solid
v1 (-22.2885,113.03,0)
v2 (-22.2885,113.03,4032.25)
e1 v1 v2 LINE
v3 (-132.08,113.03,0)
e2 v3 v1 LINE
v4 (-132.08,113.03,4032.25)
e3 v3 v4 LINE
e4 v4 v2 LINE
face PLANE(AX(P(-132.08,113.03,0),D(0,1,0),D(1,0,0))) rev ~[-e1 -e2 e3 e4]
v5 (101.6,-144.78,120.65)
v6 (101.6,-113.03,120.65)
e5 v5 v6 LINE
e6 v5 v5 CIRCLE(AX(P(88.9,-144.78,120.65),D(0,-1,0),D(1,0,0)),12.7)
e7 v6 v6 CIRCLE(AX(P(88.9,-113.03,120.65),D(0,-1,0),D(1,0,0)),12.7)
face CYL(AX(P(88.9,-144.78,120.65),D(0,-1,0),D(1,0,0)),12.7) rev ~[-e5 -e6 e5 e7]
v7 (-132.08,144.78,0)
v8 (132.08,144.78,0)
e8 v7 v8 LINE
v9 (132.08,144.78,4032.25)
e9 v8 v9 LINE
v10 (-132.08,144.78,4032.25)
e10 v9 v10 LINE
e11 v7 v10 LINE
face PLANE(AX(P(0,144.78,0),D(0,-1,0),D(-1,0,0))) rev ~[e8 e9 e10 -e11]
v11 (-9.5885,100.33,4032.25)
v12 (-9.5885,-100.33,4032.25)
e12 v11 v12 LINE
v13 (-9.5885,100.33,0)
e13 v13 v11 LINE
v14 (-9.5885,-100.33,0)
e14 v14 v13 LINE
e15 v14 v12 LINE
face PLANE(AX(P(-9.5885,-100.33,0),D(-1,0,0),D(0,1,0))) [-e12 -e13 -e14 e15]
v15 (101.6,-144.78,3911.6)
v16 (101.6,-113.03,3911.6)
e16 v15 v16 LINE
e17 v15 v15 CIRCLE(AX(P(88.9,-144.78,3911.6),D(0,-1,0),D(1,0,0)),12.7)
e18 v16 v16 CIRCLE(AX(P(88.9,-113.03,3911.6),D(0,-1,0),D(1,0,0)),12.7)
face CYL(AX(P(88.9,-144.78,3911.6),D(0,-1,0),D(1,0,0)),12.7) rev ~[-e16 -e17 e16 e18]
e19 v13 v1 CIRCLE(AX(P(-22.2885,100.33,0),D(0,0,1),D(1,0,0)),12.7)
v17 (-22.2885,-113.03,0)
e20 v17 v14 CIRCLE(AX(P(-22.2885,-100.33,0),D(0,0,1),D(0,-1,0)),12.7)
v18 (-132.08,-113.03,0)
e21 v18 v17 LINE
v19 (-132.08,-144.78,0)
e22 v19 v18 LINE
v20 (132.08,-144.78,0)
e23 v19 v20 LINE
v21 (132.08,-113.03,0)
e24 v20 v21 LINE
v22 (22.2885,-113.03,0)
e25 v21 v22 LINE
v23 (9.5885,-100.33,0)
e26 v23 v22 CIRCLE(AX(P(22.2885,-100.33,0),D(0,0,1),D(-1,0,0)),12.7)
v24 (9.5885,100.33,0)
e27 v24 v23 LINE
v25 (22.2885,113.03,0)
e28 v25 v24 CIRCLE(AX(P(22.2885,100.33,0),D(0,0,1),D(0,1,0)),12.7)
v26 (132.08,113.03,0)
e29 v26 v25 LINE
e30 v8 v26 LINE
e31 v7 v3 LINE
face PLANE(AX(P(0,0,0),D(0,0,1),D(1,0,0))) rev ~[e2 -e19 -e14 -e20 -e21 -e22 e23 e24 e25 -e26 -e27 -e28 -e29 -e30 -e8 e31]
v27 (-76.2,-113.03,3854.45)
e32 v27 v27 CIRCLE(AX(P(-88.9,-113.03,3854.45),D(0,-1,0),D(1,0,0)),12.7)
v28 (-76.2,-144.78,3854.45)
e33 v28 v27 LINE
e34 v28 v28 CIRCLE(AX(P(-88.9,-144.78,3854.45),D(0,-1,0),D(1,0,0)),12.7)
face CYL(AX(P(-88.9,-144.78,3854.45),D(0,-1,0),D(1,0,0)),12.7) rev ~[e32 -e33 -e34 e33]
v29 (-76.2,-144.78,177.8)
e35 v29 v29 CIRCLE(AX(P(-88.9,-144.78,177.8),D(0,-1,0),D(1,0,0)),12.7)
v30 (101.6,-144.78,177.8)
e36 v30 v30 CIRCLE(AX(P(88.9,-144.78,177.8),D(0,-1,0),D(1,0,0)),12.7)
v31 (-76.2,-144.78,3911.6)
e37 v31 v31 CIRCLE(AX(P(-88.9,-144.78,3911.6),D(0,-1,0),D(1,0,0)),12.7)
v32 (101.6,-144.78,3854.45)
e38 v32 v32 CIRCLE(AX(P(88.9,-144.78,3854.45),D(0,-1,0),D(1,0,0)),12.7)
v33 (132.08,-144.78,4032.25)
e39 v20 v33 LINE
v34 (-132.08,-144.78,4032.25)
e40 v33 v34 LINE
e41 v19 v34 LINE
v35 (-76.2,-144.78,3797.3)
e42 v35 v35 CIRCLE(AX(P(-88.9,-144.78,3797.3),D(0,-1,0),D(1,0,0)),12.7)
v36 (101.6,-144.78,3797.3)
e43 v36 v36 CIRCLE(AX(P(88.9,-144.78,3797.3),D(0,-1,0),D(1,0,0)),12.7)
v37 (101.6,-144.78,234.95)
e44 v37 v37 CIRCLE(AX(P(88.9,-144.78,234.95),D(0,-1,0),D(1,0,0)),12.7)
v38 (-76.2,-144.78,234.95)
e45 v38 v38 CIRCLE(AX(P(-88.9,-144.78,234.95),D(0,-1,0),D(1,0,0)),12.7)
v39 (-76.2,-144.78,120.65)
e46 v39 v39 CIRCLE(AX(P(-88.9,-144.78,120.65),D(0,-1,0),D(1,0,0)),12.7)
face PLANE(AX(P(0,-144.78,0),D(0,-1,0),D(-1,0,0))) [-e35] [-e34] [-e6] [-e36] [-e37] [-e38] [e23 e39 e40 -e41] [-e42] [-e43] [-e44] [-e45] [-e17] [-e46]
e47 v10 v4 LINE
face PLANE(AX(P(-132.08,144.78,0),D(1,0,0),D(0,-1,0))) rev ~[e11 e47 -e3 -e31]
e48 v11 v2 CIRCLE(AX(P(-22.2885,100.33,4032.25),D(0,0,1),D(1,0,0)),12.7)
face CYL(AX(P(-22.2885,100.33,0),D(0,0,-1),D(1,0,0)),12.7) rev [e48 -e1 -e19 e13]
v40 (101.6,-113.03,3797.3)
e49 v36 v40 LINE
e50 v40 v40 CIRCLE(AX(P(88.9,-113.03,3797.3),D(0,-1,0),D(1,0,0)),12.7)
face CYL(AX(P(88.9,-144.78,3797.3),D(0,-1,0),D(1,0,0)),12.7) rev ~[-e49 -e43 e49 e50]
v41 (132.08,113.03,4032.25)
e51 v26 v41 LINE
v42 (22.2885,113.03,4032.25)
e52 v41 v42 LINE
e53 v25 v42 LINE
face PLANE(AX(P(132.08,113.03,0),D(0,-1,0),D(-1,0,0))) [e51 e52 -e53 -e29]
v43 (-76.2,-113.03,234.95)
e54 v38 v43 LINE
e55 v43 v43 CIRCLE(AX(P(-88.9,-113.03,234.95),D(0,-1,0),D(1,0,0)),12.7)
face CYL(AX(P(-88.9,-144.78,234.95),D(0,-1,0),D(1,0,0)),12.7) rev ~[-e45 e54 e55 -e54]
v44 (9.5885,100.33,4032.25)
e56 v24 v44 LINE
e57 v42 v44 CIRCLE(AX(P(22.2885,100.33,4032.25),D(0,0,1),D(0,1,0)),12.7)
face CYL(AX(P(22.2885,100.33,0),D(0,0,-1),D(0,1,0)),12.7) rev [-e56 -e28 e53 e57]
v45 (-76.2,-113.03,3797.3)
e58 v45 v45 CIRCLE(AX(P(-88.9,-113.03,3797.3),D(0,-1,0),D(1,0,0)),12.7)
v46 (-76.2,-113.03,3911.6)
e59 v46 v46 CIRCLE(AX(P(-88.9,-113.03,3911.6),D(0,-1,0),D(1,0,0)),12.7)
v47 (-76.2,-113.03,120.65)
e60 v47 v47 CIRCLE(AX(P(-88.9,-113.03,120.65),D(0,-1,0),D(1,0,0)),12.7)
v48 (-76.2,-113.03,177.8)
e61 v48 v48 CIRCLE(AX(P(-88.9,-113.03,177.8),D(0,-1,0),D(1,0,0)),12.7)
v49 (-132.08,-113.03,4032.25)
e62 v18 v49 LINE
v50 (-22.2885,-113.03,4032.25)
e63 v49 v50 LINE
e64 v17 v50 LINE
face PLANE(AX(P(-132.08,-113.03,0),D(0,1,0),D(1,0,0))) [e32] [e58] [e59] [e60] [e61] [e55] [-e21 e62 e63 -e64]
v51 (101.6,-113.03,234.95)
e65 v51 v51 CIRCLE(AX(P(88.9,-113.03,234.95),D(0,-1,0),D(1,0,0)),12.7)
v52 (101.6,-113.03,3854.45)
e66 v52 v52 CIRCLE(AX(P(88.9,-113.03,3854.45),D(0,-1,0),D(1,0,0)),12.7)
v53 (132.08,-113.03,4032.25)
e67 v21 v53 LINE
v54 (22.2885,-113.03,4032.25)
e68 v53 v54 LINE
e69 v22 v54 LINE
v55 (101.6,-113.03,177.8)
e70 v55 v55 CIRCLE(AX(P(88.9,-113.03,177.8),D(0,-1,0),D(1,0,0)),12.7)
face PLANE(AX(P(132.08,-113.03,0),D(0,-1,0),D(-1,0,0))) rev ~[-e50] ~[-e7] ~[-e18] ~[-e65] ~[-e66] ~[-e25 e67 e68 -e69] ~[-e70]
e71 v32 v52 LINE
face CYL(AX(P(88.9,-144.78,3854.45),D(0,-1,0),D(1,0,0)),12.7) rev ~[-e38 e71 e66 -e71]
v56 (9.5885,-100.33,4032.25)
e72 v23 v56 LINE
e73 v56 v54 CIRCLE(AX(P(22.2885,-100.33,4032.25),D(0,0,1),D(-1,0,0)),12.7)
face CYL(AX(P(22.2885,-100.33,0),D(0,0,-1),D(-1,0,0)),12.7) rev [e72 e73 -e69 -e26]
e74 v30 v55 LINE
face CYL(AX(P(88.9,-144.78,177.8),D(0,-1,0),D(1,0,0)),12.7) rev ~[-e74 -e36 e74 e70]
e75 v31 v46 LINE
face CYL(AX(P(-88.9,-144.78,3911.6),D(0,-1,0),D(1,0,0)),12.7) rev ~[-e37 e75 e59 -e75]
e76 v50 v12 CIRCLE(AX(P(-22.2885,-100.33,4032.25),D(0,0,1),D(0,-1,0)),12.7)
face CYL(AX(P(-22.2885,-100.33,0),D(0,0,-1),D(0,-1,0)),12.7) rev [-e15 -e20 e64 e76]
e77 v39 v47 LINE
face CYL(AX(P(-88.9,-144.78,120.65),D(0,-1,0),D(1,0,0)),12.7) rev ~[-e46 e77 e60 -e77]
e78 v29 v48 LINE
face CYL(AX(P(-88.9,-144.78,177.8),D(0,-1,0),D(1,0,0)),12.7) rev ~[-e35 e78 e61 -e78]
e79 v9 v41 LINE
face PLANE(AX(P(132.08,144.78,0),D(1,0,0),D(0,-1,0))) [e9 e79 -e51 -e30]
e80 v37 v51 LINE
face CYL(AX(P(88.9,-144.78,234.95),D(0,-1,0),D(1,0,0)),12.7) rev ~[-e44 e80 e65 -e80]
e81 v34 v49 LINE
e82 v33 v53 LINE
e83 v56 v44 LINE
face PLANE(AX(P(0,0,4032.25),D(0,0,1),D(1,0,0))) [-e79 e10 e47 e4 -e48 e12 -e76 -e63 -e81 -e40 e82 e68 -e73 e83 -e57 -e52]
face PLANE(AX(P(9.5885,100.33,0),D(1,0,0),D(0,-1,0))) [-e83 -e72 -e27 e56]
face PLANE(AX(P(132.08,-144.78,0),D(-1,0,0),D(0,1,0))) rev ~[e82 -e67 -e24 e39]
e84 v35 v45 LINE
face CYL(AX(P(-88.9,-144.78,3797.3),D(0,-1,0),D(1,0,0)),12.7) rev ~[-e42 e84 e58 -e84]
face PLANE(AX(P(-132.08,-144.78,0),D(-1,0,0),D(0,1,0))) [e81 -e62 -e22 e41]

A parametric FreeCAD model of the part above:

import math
import FreeCAD as App
import Part
import Sketcher
from FreeCAD import Vector
Q = App.Units.Quantity

doc = App.newDocument("Part")
body = doc.addObject("PartDesign::Body", "Body")

# Sketch on XY plane
sketch1 = body.newObject("Sketcher::SketchObject", "Sketch")
sketch1.AttachmentSupport = (doc.getObject("XY_Plane"), [""])
sketch1.MapMode = "FlatFace"
sketch1.addGeometry([
    Part.LineSegment(Vector(-132, -113, 0), Vector(-132, -145, 0)),  # 0
    Part.LineSegment(Vector(-132, -145, 0), Vector(132, -145, 0)),  # 1
    Part.LineSegment(Vector(132, -145, 0), Vector(132, -113, 0)),  # 2
    Part.LineSegment(Vector(132, -113, 0), Vector(22, -113, 0)),  # 3
    Part.ArcOfCircle(Part.Circle(Vector(22, -100, 0), Vector(0, 0, 1), 13), math.radians(180), math.radians(270)),  # 4
    Part.LineSegment(Vector(10, -100, 0), Vector(10, 100, 0)),  # 5
    Part.ArcOfCircle(Part.Circle(Vector(22, 100, 0), Vector(0, 0, 1), 13), math.radians(90), math.radians(180)),  # 6
    Part.LineSegment(Vector(22, 113, 0), Vector(132, 113, 0)),  # 7
    Part.LineSegment(Vector(132, 113, 0), Vector(132, 145, 0)),  # 8
    Part.LineSegment(Vector(132, 145, 0), Vector(-132, 145, 0)),  # 9
    Part.LineSegment(Vector(-132, 145, 0), Vector(-132, 113, 0)),  # 10
    Part.LineSegment(Vector(-132, 113, 0), Vector(-22, 113, 0)),  # 11
    Part.ArcOfCircle(Part.Circle(Vector(-22, 100, 0), Vector(0, 0, 1), 13), math.radians(0), math.radians(90)),  # 12
    Part.LineSegment(Vector(-10, 100, 0), Vector(-10, -100, 0)),  # 13
    Part.ArcOfCircle(Part.Circle(Vector(-22, -100, 0), Vector(0, 0, 1), 13), math.radians(-90), math.radians(0)),  # 14
    Part.LineSegment(Vector(-22, -113, 0), Vector(-132, -113, 0)),  # 15
], False)
sketch1.addConstraint([
    Sketcher.Constraint("Coincident", 0, 2, 1, 1),
    Sketcher.Constraint("Coincident", 1, 2, 2, 1),
    Sketcher.Constraint("Coincident", 2, 2, 3, 1),
    Sketcher.Constraint("Tangent", 3, 2, 4, 2),
    Sketcher.Constraint("Tangent", 4, 1, 5, 1),
    Sketcher.Constraint("Tangent", 5, 2, 6, 2),
    Sketcher.Constraint("Tangent", 6, 1, 7, 1),
    Sketcher.Constraint("Coincident", 7, 2, 8, 1),
    Sketcher.Constraint("Coincident", 8, 2, 9, 1),
    Sketcher.Constraint("Coincident", 9, 2, 10, 1),
    Sketcher.Constraint("Coincident", 10, 2, 11, 1),
    Sketcher.Constraint("Tangent", 11, 2, 12, 2),
    Sketcher.Constraint("Tangent", 12, 1, 13, 1),
    Sketcher.Constraint("Tangent", 13, 2, 14, 2),
    Sketcher.Constraint("Tangent", 14, 1, 15, 1),
    Sketcher.Constraint("Coincident", 15, 2, 0, 1),
    Sketcher.Constraint("Vertical", 0),
    Sketcher.Constraint("Horizontal", 1),
    Sketcher.Constraint("Vertical", 2),
    Sketcher.Constraint("Horizontal", 3),
    Sketcher.Constraint("Vertical", 5),
    Sketcher.Constraint("Horizontal", 7),
    Sketcher.Constraint("Vertical", 8),
    Sketcher.Constraint("Horizontal", 9),
    Sketcher.Constraint("Vertical", 10),
    Sketcher.Constraint("Horizontal", 11),
    Sketcher.Constraint("Vertical", 13),
    Sketcher.Constraint("Horizontal", 15),
    Sketcher.Constraint("Equal", 4, 6),
    Sketcher.Constraint("Equal", 6, 12),
    Sketcher.Constraint("Equal", 12, 14),
    Sketcher.Constraint("Symmetric", 4, 3, 12, 3, -1, 1),
    Sketcher.Constraint("Symmetric", 0, 2, 8, 2, -1, 1),
    Sketcher.Constraint("Symmetric", 7, 2, 10, 2, -2),
    Sketcher.Constraint("Symmetric", 2, 2, 15, 2, -2),
    Sketcher.Constraint("Radius", 4, Q("0.5 in")),
    Sketcher.Constraint("DistanceY", 0, 2, 0, 1, Q("1.25 in")),
    Sketcher.Constraint("DistanceX", 0, 2, -1, 1, Q("5.2 in")),
    Sketcher.Constraint("DistanceY", 0, 2, -1, 1, Q("5.7 in")),
    Sketcher.Constraint("DistanceX", -1, 1, 4, 1, Q("0.3775 in")),
])
pad1 = body.newObject("PartDesign::Pad", "Pad")
pad1.Profile = sketch1
pad1.Length = Q("158.75 in")

# Sketch on XZ plane
sketch2 = body.newObject("Sketcher::SketchObject", "Sketch001")
sketch2.AttachmentSupport = (doc.getObject("XZ_Plane"), [""])
sketch2.MapMode = "FlatFace"
sketch2.AttachmentOffset = App.Placement(Vector(0, 0, 5.7 * 25.4), App.Rotation())
sketch2.addGeometry([
    Part.Circle(Vector(-89, 121, 0), Vector(0, 0, 1), 13),  # 0
    Part.Circle(Vector(-89, 178, 0), Vector(0, 0, 1), 13),  # 1
    Part.Circle(Vector(-89, 235, 0), Vector(0, 0, 1), 13),  # 2
    Part.Circle(Vector(89, 121, 0), Vector(0, 0, 1), 13),  # 3
    Part.Circle(Vector(89, 178, 0), Vector(0, 0, 1), 13),  # 4
    Part.Circle(Vector(89, 235, 0), Vector(0, 0, 1), 13),  # 5
    Part.Circle(Vector(-89, 3797, 0), Vector(0, 0, 1), 13),  # 6
    Part.Circle(Vector(-89, 3854, 0), Vector(0, 0, 1), 13),  # 7
    Part.Circle(Vector(-89, 3912, 0), Vector(0, 0, 1), 13),  # 8
    Part.Circle(Vector(89, 3797, 0), Vector(0, 0, 1), 13),  # 9
    Part.Circle(Vector(89, 3854, 0), Vector(0, 0, 1), 13),  # 10
    Part.Circle(Vector(89, 3912, 0), Vector(0, 0, 1), 13),  # 11
], False)
sketch2.addConstraint([
    Sketcher.Constraint("Equal", 0, 1),
    Sketcher.Constraint("Equal", 1, 2),
    Sketcher.Constraint("Equal", 2, 3),
    Sketcher.Constraint("Equal", 3, 4),
    Sketcher.Constraint("Equal", 4, 5),
    Sketcher.Constraint("Equal", 5, 6),
    Sketcher.Constraint("Equal", 6, 7),
    Sketcher.Constraint("Equal", 7, 8),
    Sketcher.Constraint("Equal", 8, 9),
    Sketcher.Constraint("Equal", 9, 10),
    Sketcher.Constraint("Equal", 10, 11),
    Sketcher.Constraint("Symmetric", 0, 3, 3, 3, -2),
    Sketcher.Constraint("Symmetric", 1, 3, 4, 3, -2),
    Sketcher.Constraint("Symmetric", 2, 3, 5, 3, -2),
    Sketcher.Constraint("Symmetric", 6, 3, 9, 3, -2),
    Sketcher.Constraint("Symmetric", 7, 3, 10, 3, -2),
    Sketcher.Constraint("Symmetric", 8, 3, 11, 3, -2),
    Sketcher.Constraint("Vertical", 0, 3, 1, 3),
    Sketcher.Constraint("Vertical", 1, 3, 2, 3),
    Sketcher.Constraint("Vertical", 2, 3, 6, 3),
    Sketcher.Constraint("Vertical", 6, 3, 7, 3),
    Sketcher.Constraint("Vertical", 7, 3, 8, 3),
    Sketcher.Constraint("Diameter", 0, Q("1 in")),
    Sketcher.Constraint("DistanceY", -1, 1, 1, 3, Q("7 in")),
    Sketcher.Constraint("DistanceY", -1, 1, 8, 3, Q("154 in")),
    Sketcher.Constraint("DistanceX", 0, 3, 3, 3, Q("7 in")),
    Sketcher.Constraint("DistanceY", -1, 1, 6, 3, Q("149.5 in")),
    Sketcher.Constraint("DistanceY", 0, 3, 2, 3, Q("4.5 in")),
    Sketcher.Constraint("DistanceY", 2, 3, 7, 3, Q("142.5 in")),
    Sketcher.Constraint("DistanceY", -1, 1, 0, 3, Q("4.75 in")),
])
pocket1 = body.newObject("PartDesign::Pocket", "Pocket")
pocket1.Profile = sketch2
pocket1.Length = Q("2 in")

doc.recompute()
